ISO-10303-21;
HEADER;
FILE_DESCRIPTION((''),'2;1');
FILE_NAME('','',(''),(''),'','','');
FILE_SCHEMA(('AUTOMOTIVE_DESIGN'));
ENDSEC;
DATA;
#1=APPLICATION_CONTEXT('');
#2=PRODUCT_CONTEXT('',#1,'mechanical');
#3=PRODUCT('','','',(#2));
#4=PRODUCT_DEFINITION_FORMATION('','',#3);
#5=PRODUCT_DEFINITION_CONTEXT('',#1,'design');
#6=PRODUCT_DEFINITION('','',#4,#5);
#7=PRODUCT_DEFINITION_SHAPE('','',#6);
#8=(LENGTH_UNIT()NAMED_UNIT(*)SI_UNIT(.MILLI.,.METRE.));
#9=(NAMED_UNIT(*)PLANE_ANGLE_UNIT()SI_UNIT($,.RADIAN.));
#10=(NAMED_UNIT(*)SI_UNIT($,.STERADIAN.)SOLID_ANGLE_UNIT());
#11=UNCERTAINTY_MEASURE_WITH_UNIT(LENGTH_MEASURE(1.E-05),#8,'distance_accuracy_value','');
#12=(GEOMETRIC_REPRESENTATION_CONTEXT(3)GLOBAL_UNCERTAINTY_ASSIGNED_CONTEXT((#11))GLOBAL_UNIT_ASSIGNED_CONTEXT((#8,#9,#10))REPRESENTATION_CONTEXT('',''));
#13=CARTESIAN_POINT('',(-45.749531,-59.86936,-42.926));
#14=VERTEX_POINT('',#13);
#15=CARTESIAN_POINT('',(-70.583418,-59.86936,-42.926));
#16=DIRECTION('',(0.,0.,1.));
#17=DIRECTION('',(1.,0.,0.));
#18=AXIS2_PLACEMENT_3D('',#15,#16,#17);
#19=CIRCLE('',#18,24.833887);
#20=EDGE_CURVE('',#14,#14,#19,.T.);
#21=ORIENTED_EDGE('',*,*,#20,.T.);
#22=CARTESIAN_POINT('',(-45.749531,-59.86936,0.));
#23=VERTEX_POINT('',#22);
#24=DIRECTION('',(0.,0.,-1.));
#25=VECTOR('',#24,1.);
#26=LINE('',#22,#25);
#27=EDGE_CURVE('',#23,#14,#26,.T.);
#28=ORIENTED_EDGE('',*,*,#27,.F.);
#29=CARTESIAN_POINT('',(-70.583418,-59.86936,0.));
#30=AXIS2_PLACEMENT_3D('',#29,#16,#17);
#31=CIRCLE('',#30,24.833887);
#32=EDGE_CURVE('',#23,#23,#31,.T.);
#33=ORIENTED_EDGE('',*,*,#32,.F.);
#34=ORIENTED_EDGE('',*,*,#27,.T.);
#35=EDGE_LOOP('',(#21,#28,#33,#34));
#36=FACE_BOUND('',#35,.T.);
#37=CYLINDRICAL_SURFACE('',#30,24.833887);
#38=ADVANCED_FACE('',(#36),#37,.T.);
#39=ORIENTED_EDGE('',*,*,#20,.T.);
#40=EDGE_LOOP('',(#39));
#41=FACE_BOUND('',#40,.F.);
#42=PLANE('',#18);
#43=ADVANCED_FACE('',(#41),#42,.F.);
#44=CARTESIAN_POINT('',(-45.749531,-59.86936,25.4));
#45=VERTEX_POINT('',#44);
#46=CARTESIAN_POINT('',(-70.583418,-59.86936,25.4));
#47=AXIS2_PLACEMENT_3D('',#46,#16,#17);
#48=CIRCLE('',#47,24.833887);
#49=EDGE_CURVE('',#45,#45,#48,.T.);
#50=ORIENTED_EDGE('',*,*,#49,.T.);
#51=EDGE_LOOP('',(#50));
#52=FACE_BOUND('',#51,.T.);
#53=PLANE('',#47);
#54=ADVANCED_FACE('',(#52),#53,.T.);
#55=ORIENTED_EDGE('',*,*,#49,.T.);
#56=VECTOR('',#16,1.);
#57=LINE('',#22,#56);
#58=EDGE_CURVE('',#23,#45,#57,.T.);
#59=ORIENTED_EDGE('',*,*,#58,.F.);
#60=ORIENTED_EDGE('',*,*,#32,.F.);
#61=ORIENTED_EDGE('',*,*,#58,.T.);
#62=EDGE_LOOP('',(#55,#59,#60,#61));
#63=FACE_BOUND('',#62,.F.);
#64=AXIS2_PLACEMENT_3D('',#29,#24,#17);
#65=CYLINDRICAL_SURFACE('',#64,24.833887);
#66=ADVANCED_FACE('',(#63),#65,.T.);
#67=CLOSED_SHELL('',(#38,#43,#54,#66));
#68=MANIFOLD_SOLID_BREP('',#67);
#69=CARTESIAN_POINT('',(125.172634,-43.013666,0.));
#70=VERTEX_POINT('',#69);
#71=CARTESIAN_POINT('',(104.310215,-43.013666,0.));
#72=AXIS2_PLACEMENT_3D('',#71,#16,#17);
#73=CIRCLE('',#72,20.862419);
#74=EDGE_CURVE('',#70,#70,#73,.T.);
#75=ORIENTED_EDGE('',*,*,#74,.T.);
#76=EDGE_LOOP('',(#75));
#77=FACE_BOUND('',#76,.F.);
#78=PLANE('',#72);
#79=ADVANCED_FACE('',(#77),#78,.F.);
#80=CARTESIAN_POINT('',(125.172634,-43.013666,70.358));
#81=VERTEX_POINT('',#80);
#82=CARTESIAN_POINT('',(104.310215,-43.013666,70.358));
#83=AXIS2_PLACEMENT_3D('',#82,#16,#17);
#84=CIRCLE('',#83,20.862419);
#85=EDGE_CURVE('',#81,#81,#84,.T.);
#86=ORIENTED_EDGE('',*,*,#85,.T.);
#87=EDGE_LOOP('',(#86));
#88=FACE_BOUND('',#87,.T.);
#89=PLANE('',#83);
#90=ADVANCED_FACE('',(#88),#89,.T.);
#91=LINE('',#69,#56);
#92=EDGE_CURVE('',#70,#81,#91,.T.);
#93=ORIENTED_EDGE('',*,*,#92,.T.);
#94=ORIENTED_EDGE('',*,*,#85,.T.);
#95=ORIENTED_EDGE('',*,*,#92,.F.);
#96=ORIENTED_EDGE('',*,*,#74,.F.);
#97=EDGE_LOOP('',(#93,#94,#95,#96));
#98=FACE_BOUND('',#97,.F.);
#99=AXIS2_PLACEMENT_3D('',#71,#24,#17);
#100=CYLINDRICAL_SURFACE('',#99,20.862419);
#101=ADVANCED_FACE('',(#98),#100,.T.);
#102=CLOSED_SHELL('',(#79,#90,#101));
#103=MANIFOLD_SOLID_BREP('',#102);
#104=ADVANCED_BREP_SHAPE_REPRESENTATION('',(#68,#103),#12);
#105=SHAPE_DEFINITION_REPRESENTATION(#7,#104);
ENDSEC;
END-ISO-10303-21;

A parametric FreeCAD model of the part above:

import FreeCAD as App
import Part
import Sketcher
Q = App.Units.Quantity

doc = App.newDocument("Part")
body = doc.addObject("PartDesign::Body", "Body")

sketch1 = body.newObject("Sketcher::SketchObject", "Sketch")
sketch1.AttachmentSupport = (doc.getObject("XY_Plane"), [""])
sketch1.MapMode = "FlatFace"
sketch1.addGeometry(Part.Circle(App.Vector(104.310215, -43.013666, 0), App.Vector(0, 0, 1), 20.862419), False)
sketch1.addConstraint([
    Sketcher.Constraint("Diameter", 0, 41.724838),
    Sketcher.Constraint("DistanceX", -1, 1, 0, 3, 104.310215),
    Sketcher.Constraint("DistanceY", 0, 3, -1, 1, 43.013666),
])
pad1 = body.newObject("PartDesign::Pad", "Pad")
pad1.Profile = sketch1
pad1.Length = Q("2.77 in")
body2 = doc.addObject("PartDesign::Body", "Body001")

sketch2 = body2.newObject("Sketcher::SketchObject", "Sketch001")
sketch2.AttachmentSupport = (doc.getObject("XY_Plane001"), [""])
sketch2.MapMode = "FlatFace"
sketch2.addGeometry(Part.Circle(App.Vector(-70.583418, -59.86936, 0), App.Vector(0, 0, 1), 24.833887), False)
sketch2.addConstraint([
    Sketcher.Constraint("Diameter", 0, 49.667774),
    Sketcher.Constraint("DistanceY", 0, 3, -1, 1, 59.86936),
    Sketcher.Constraint("DistanceX", 0, 3, -1, 1, 70.583418),
])
pad2 = body2.newObject("PartDesign::Pad", "Pad001")
pad2.Profile = sketch2
pad2.Length = Q("1.69 in")
pad2.Reversed = True

sketch3 = body2.newObject("Sketcher::SketchObject", "Sketch002")
sketch3.AttachmentSupport = (doc.getObject("XY_Plane001"), [""])
sketch3.MapMode = "FlatFace"
sketch3.addGeometry(Part.Circle(App.Vector(-70.583418, -59.86936, 0), App.Vector(0, 0, 1), 24.833887), False)
sketch3.addConstraint([
    Sketcher.Constraint("Diameter", 0, 49.667774),
    Sketcher.Constraint("DistanceY", 0, 3, -1, 1, 59.86936),
    Sketcher.Constraint("DistanceX", 0, 3, -1, 1, 70.583418),
])
pad3 = body2.newObject("PartDesign::Pad", "Pad002")
pad3.Profile = sketch3
pad3.Length = Q("1 in")

doc.recompute()
